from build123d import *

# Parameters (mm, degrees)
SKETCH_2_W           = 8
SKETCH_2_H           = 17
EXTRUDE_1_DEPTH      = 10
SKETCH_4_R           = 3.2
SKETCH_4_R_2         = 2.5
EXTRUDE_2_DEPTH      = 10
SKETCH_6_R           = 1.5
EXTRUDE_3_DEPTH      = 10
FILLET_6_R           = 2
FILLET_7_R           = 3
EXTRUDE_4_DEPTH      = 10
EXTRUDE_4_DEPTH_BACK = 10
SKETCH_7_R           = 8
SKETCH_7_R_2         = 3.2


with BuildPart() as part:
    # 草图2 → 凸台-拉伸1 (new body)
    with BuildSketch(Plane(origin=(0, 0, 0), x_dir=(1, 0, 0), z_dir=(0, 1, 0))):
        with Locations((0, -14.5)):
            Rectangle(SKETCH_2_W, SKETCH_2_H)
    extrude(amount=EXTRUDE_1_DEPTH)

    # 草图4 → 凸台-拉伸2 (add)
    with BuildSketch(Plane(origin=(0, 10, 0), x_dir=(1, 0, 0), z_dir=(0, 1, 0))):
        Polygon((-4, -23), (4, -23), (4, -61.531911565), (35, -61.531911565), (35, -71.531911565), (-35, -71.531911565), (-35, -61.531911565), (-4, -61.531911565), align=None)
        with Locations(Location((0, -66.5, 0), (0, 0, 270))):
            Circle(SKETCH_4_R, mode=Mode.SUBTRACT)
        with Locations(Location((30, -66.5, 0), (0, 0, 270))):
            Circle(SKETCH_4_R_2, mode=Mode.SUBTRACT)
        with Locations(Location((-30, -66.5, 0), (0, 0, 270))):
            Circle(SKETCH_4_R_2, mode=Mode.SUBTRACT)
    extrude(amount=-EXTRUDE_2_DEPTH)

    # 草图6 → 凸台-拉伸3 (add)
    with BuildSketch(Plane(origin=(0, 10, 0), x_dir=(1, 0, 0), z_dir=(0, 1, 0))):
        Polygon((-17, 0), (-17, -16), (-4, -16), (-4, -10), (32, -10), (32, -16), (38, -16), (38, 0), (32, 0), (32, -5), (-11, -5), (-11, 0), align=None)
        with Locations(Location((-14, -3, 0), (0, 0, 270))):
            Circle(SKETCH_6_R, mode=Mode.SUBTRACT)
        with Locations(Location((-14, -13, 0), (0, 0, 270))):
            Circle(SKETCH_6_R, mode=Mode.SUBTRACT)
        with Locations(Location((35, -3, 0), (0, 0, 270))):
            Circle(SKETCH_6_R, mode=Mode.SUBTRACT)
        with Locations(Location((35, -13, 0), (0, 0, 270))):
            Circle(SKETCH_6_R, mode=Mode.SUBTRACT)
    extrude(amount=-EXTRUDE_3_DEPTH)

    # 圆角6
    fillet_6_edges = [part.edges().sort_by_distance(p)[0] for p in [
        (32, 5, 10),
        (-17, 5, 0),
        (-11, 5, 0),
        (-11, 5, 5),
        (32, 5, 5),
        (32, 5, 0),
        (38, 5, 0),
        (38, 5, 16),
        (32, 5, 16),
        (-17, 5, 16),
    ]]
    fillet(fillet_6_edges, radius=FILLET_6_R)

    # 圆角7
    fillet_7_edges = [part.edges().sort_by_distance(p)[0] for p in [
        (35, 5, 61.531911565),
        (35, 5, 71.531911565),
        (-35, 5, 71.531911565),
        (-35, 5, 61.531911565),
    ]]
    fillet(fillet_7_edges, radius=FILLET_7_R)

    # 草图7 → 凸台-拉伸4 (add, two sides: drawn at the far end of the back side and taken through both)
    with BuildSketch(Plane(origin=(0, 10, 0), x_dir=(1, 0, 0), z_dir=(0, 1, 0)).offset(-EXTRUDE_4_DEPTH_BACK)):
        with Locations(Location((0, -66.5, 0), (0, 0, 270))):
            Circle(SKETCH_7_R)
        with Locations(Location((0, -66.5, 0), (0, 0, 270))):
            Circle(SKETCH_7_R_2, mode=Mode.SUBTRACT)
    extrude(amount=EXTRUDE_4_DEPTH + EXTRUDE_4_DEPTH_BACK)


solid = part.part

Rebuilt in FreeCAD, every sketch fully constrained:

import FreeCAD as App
import Part
import Sketcher

V = App.Vector
Q = App.Units.Quantity


def edges_at(feature, points):
    """Names of the edges that pass closest to the given points."""
    edges = feature.Shape.Edges
    near = lambda p: min(range(len(edges)), key=lambda i: edges[i].distToShape(Part.Vertex(*p))[0])
    return sorted({f"Edge{near(p) + 1}" for p in points})


def add_polygon(sketch, points):
    """Adds a closed chain of lines whose ends are joined by coincident constraints."""
    first, n = sketch.GeometryCount, len(points)
    for a, b in zip(points, points[1:] + points[:1]):
        sketch.addGeometry(Part.LineSegment(App.Vector(*a, 0), App.Vector(*b, 0)), False)
    for i in range(n):
        sketch.addConstraint(Sketcher.Constraint("Coincident", first + i, 2, first + (i + 1) % n, 1))

doc = App.newDocument("Part")
body = doc.addObject("PartDesign::Body", "Body")

sketch1 = body.newObject("Sketcher::SketchObject", "Sketch")
sketch1.AttachmentSupport = (doc.getObject("XZ_Plane"), [""])
sketch1.MapMode = "FlatFace"
add_polygon(sketch1, [(-4, 6), (-4, 23), (4, 23), (4, 6)])
sketch1.addConstraint(Sketcher.Constraint("Vertical", 0))
sketch1.addConstraint(Sketcher.Constraint("Horizontal", 1))
sketch1.addConstraint(Sketcher.Constraint("Vertical", 2))
sketch1.addConstraint(Sketcher.Constraint("Horizontal", 3))
sketch1.addConstraint(Sketcher.Constraint("DistanceX", 1, 1, 1, 2, Q("8 mm")))
sketch1.addConstraint(Sketcher.Constraint("DistanceY", 0, 1, 0, 2, Q("17 mm")))
sketch1.addConstraint(Sketcher.Constraint("DistanceX", 0, 2, -1, 1, Q("4 mm")))
sketch1.addConstraint(Sketcher.Constraint("DistanceY", -1, 1, 0, 2, Q("23 mm")))
pad1 = body.newObject("PartDesign::Pad", "Pad")
pad1.Profile = sketch1
pad1.Length = 10
pad1.Reversed = True

sketch2 = body.newObject("Sketcher::SketchObject", "Sketch001")
sketch2.AttachmentSupport = (doc.getObject("XZ_Plane"), [""])
sketch2.MapMode = "FlatFace"
sketch2.AttachmentOffset = App.Placement(V(0, 0, -10), App.Rotation())
add_polygon(sketch2, [(4, 23), (-4, 23), (-4, 61.5), (-35, 61.5), (-35, 71.5), (35, 71.5), (35, 61.5), (4, 61.5)])
sketch2.addGeometry(Part.Circle(V(30, 66.5, 0), V(0, 0, 1), 2.5), False)
sketch2.addGeometry(Part.Circle(V(0, 66.5, 0), V(0, 0, 1), 3.2), False)
sketch2.addGeometry(Part.Circle(V(-30, 66.5, 0), V(0, 0, 1), 2.5), False)
sketch2.addConstraint(Sketcher.Constraint("Horizontal", 0))
sketch2.addConstraint(Sketcher.Constraint("Vertical", 1))
sketch2.addConstraint(Sketcher.Constraint("Horizontal", 2))
sketch2.addConstraint(Sketcher.Constraint("Vertical", 3))
sketch2.addConstraint(Sketcher.Constraint("Horizontal", 4))
sketch2.addConstraint(Sketcher.Constraint("Vertical", 5))
sketch2.addConstraint(Sketcher.Constraint("Horizontal", 6))
sketch2.addConstraint(Sketcher.Constraint("Vertical", 7))
sketch2.addConstraint(Sketcher.Constraint("Equal", 8, 10))
sketch2.addConstraint(Sketcher.Constraint("Symmetric", 8, 3, 10, 3, -2))
sketch2.addConstraint(Sketcher.Constraint("Symmetric", 2, 2, 5, 2, -2))
sketch2.addConstraint(Sketcher.Constraint("PointOnObject", 9, 3, -2))
sketch2.addConstraint(Sketcher.Constraint("Horizontal", 8, 3, 9, 3))
sketch2.addConstraint(Sketcher.Constraint("Equal", 2, 6))
sketch2.addConstraint(Sketcher.Constraint("Diameter", 8, Q("5 mm")))
sketch2.addConstraint(Sketcher.Constraint("Diameter", 9, Q("6.4 mm")))
sketch2.addConstraint(Sketcher.Constraint("DistanceX", 0, 2, 0, 1, Q("8 mm")))
sketch2.addConstraint(Sketcher.Constraint("DistanceX", 2, 2, 2, 1, Q("31 mm")))
sketch2.addConstraint(Sketcher.Constraint("DistanceY", 3, 1, 3, 2, Q("10 mm")))
sketch2.addConstraint(Sketcher.Constraint("DistanceX", -1, 1, 8, 3, Q("30 mm")))
sketch2.addConstraint(Sketcher.Constraint("DistanceY", -1, 1, 0, 2, Q("23 mm")))
sketch2.addConstraint(Sketcher.Constraint("DistanceY", -1, 1, 8, 3, Q("66.5 mm")))
sketch2.addConstraint(Sketcher.Constraint("DistanceY", 1, 1, 1, 2, Q("38.531912 mm")))
pad2 = body.newObject("PartDesign::Pad", "Pad001")
pad2.Profile = sketch2
pad2.Length = 10

sketch3 = body.newObject("Sketcher::SketchObject", "Sketch002")
sketch3.AttachmentSupport = (doc.getObject("XZ_Plane"), [""])
sketch3.MapMode = "FlatFace"
sketch3.AttachmentOffset = App.Placement(V(0, 0, -10), App.Rotation())
add_polygon(sketch3, [(-17, 0), (-17, 16), (-4, 16), (-4, 10), (32, 10), (32, 16), (38, 16), (38, 0), (32, 0), (32, 5), (-11, 5), (-11, 0)])
sketch3.addGeometry(Part.Circle(V(-14, 13, 0), V(0, 0, 1), 1.5), False)
sketch3.addGeometry(Part.Circle(V(35, 13, 0), V(0, 0, 1), 1.5), False)
sketch3.addGeometry(Part.Circle(V(-14, 3, 0), V(0, 0, 1), 1.5), False)
sketch3.addGeometry(Part.Circle(V(35, 3, 0), V(0, 0, 1), 1.5), False)
sketch3.addConstraint(Sketcher.Constraint("Vertical", 0))
sketch3.addConstraint(Sketcher.Constraint("Horizontal", 1))
sketch3.addConstraint(Sketcher.Constraint("Vertical", 2))
sketch3.addConstraint(Sketcher.Constraint("Horizontal", 3))
sketch3.addConstraint(Sketcher.Constraint("Vertical", 4))
sketch3.addConstraint(Sketcher.Constraint("Horizontal", 5))
sketch3.addConstraint(Sketcher.Constraint("Vertical", 6))
sketch3.addConstraint(Sketcher.Constraint("Horizontal", 7))
sketch3.addConstraint(Sketcher.Constraint("Vertical", 8))
sketch3.addConstraint(Sketcher.Constraint("Horizontal", 9))
sketch3.addConstraint(Sketcher.Constraint("Vertical", 10))
sketch3.addConstraint(Sketcher.Constraint("Horizontal", 11))
sketch3.addConstraint(Sketcher.Constraint("Equal", 12, 13))
sketch3.addConstraint(Sketcher.Constraint("Equal", 13, 14))
sketch3.addConstraint(Sketcher.Constraint("Equal", 14, 15))
sketch3.addConstraint(Sketcher.Constraint("PointOnObject", 6, 2, -1))
sketch3.addConstraint(Sketcher.Constraint("PointOnObject", 10, 2, -1))
sketch3.addConstraint(Sketcher.Constraint("Horizontal", 12, 3, 13, 3))
sketch3.addConstraint(Sketcher.Constraint("Horizontal", 14, 3, 15, 3))
sketch3.addConstraint(Sketcher.Constraint("Horizontal", 1, 2, 4, 2))
sketch3.addConstraint(Sketcher.Constraint("Vertical", 12, 3, 14, 3))
sketch3.addConstraint(Sketcher.Constraint("Vertical", 13, 3, 15, 3))
sketch3.addConstraint(Sketcher.Constraint("Vertical", 4, 2, 7, 2))
sketch3.addConstraint(Sketcher.Constraint("Equal", 7, 11))
sketch3.addConstraint(Sketcher.Constraint("Equal", 11, 2))
sketch3.addConstraint(Sketcher.Constraint("Diameter", 12, Q("3 mm")))
sketch3.addConstraint(Sketcher.Constraint("DistanceX", 1, 1, 1, 2, Q("13 mm")))
sketch3.addConstraint(Sketcher.Constraint("DistanceX", 3, 1, 3, 2, Q("36 mm")))
sketch3.addConstraint(Sketcher.Constraint("DistanceX", 5, 1, 5, 2, Q("6 mm")))
sketch3.addConstraint(Sketcher.Constraint("DistanceY", 0, 1, 0, 2, Q("16 mm")))
sketch3.addConstraint(Sketcher.Constraint("DistanceY", 8, 1, 8, 2, Q("5 mm")))
sketch3.addConstraint(Sketcher.Constraint("DistanceX", 12, 3, -1, 1, Q("14 mm")))
sketch3.addConstraint(Sketcher.Constraint("DistanceY", -1, 1, 12, 3, Q("13 mm")))
sketch3.addConstraint(Sketcher.Constraint("DistanceX", -1, 1, 13, 3, Q("35 mm")))
sketch3.addConstraint(Sketcher.Constraint("DistanceY", -1, 1, 14, 3, Q("3 mm")))
sketch3.addConstraint(Sketcher.Constraint("DistanceX", 0, 2, -1, 1, Q("17 mm")))
pad3 = body.newObject("PartDesign::Pad", "Pad002")
pad3.Profile = sketch3
pad3.Length = 10
doc.recompute()

fillet = body.newObject("PartDesign::Fillet", "Fillet")
fillet.Base = (pad3, edges_at(pad3, [
    (32, 5, 10),
    (-17, 5, 0),
    (-11, 5, 0),
    (-11, 5, 5),
    (32, 5, 5),
    (32, 5, 0),
    (38, 5, 0),
    (38, 5, 16),
    (32, 5, 16),
    (-17, 5, 16),
]))
fillet.Radius = 2
doc.recompute()

fillet2 = body.newObject("PartDesign::Fillet", "Fillet001")
fillet2.Base = (fillet, edges_at(fillet, [
    (35, 5, 61.532),
    (35, 5, 71.532),
    (-35, 5, 71.532),
    (-35, 5, 61.532),
]))
fillet2.Radius = 3

sketch4 = body.newObject("Sketcher::SketchObject", "Sketch003")
sketch4.AttachmentSupport = (doc.getObject("XZ_Plane"), [""])
sketch4.MapMode = "FlatFace"
sketch4.AttachmentOffset = App.Placement(V(0, 0, -10), App.Rotation())
sketch4.addGeometry(Part.Circle(V(0, 66.5, 0), V(0, 0, 1), 8), False)
sketch4.addGeometry(Part.Circle(V(0, 66.5, 0), V(0, 0, 1), 3.2), False)
sketch4.addConstraint(Sketcher.Constraint("Coincident", 1, 3, 0, 3))
sketch4.addConstraint(Sketcher.Constraint("PointOnObject", 0, 3, -2))
sketch4.addConstraint(Sketcher.Constraint("Diameter", 0, Q("16 mm")))
sketch4.addConstraint(Sketcher.Constraint("Diameter", 1, Q("6.4 mm")))
sketch4.addConstraint(Sketcher.Constraint("DistanceY", -1, 1, 0, 3, Q("66.5 mm")))
pad4 = body.newObject("PartDesign::Pad", "Pad003")
pad4.Profile = sketch4
pad4.Type = "TwoLengths"
pad4.Length = 10
pad4.Length2 = 10
pad4.Reversed = True

doc.recompute()
